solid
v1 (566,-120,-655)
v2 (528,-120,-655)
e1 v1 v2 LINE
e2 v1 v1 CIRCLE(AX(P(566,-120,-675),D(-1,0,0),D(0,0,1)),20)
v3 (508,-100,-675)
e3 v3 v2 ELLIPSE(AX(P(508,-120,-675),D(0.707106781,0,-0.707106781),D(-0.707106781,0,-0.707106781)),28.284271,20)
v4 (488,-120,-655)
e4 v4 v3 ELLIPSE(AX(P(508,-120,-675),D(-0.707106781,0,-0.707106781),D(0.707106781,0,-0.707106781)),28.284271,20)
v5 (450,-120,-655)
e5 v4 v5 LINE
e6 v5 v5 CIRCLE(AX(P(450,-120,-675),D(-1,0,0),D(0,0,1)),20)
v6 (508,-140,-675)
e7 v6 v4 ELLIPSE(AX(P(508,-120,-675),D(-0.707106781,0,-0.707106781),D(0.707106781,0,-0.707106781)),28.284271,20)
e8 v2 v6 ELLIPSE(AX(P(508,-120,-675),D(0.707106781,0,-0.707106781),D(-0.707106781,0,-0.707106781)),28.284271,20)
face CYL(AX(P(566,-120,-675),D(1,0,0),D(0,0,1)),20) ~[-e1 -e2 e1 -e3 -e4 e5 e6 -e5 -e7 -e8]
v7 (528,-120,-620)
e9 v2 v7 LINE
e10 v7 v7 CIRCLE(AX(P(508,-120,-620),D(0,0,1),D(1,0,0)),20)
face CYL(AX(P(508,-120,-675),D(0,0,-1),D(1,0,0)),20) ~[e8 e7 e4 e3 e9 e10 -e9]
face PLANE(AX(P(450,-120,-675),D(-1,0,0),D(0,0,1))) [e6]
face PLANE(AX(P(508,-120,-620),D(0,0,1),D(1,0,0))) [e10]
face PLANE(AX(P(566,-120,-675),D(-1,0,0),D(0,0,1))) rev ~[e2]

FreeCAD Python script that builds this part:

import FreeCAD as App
import Part
import Sketcher

doc = App.newDocument("Part")
params = doc.addObject("Spreadsheet::Sheet", "Params")
for row, (alias, value) in enumerate([
    ("sketch1_diameter", "40 mm"),
    ("pad1_length", "116 mm"),
    ("sketch2_diameter", "40 mm"),
    ("pad2_length", "55 mm"),
], start=1):
    params.set(f"A{row}", alias)
    params.set(f"B{row}", "=" + value)
    params.setAlias(f"B{row}", alias)

body = doc.addObject("PartDesign::Body", "Body")

# Sketch on XY plane
sketch1 = body.newObject("Sketcher::SketchObject", "Sketch")
sketch1.AttachmentSupport = (doc.getObject("XY_Plane"), [""])
sketch1.MapMode = "FlatFace"
sketch1.addGeometry(Part.Circle(App.Vector(0, 0, 0), App.Vector(0, 0, 1), 20), False)
sketch1.addConstraint([
    Sketcher.Constraint("Coincident", 0, 3, -1, 1),
    Sketcher.Constraint("Diameter", 0, 40.0),
])
sketch1.setExpression("Constraints[1]", "Params.sketch1_diameter")
pad1 = body.newObject("PartDesign::Pad", "Pad")
pad1.Profile = sketch1
pad1.setExpression("Length", "Params.pad1_length")
body2 = doc.addObject("PartDesign::Body", "Body001")

# Sketch on YZ plane
sketch2 = body2.newObject("Sketcher::SketchObject", "Sketch001")
sketch2.AttachmentSupport = (doc.getObject("YZ_Plane001"), [""])
sketch2.MapMode = "FlatFace"
sketch2.addGeometry(Part.Circle(App.Vector(0, 58, 0), App.Vector(0, 0, 1), 20), False)
sketch2.addConstraint([
    Sketcher.Constraint("PointOnObject", 0, 3, -2),
    Sketcher.Constraint("Diameter", 0, 40.0),
    Sketcher.Constraint("DistanceY", -1, 1, 0, 3, 58.0),
])
sketch2.setExpression("Constraints[1]", "Params.sketch2_diameter")
pad2 = body2.newObject("PartDesign::Pad", "Pad001")
pad2.Profile = sketch2
pad2.setExpression("Length", "Params.pad2_length")
doc.recompute()

boolean = body2.newObject("PartDesign::Boolean", "Boolean")
boolean.Type = "Fuse"
boolean.addObjects([body])
body3 = doc.addObject("PartDesign::Body", "Body002")
doc.recompute()

body2.Placement = App.Placement(App.Vector(566, -120, -675), App.Rotation(App.Vector(0, -1, 0), 90))
boolean2 = body3.newObject("PartDesign::Boolean", "Boolean001")
boolean2.Type = "Fuse"
boolean2.addObjects([body2])

doc.recompute()
